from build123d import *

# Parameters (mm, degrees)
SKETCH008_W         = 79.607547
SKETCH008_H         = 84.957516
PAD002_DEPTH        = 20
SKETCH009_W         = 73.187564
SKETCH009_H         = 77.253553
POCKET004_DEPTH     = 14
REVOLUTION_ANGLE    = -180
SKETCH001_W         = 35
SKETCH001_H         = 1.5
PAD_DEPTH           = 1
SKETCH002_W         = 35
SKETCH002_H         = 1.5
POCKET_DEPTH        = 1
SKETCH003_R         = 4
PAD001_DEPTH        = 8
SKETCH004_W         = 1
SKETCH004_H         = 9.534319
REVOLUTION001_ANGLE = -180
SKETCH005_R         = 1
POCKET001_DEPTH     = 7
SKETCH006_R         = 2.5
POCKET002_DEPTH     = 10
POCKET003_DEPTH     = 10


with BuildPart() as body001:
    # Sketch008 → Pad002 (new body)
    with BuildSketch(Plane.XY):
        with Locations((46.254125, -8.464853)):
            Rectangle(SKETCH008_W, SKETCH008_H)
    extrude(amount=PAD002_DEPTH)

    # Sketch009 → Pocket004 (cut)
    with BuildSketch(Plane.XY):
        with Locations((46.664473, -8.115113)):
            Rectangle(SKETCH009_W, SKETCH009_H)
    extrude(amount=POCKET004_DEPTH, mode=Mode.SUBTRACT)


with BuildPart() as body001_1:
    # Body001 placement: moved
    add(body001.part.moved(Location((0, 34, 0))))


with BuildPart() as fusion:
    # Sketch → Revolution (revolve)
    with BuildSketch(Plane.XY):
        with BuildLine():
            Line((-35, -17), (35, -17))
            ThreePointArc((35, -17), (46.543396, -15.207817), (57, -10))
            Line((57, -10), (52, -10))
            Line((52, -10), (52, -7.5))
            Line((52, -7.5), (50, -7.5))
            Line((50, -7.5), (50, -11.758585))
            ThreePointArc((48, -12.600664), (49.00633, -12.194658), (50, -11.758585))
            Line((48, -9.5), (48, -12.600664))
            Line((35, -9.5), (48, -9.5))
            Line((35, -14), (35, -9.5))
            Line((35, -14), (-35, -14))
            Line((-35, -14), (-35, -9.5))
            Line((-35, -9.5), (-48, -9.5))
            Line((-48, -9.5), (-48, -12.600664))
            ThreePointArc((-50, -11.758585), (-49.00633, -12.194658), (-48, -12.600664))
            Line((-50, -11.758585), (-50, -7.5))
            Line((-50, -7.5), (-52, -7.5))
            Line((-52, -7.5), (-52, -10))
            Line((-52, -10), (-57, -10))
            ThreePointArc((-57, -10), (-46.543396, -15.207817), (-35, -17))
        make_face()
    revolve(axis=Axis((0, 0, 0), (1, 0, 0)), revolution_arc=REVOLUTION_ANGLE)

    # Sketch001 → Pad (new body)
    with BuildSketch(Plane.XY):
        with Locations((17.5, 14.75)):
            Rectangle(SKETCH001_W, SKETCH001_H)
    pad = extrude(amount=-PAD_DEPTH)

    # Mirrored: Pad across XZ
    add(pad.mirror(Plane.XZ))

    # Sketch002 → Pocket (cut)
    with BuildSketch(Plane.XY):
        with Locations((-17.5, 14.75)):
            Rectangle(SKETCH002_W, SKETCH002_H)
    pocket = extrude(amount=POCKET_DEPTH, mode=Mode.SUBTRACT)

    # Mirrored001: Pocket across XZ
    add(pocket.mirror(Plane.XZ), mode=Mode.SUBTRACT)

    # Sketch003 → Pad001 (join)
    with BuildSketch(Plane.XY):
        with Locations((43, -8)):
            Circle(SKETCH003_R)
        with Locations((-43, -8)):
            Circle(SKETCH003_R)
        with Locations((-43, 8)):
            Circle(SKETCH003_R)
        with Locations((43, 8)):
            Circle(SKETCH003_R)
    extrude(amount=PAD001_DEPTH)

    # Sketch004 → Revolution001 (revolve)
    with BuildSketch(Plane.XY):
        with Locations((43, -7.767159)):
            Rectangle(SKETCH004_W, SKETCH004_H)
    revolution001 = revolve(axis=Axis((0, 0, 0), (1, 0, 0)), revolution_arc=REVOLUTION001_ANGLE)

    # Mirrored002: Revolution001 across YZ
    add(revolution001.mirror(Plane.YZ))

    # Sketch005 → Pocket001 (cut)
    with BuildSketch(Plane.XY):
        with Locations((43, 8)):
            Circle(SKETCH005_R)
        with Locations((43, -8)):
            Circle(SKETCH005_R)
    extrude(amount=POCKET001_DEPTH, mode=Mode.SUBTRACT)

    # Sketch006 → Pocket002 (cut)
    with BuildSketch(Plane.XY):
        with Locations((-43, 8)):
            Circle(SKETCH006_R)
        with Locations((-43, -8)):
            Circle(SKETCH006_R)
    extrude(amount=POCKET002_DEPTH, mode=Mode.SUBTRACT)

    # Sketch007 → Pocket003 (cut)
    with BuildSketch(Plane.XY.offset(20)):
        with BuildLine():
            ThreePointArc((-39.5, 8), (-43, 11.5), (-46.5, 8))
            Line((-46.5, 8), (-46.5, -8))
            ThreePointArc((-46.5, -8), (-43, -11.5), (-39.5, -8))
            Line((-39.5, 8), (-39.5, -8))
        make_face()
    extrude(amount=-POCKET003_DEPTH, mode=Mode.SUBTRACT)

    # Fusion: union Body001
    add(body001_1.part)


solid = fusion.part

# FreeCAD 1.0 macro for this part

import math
import FreeCAD as App
import Part
import Sketcher
from FreeCAD import Vector

doc = App.newDocument("Part")
params = doc.addObject("Spreadsheet::Sheet", "Params")
for row, (alias, value) in enumerate([
    ("pad1_length", "20 mm"),
    ("pocket1_length", "14 mm"),
    ("sketch3_width", "70 mm"),
    ("sketch3_width2", "5 mm"),
    ("sketch3_width3", "2 mm"),
    ("sketch3_width4", "13 mm"),
    ("sketch3_width5", "70 mm"),
    ("revolution_angle", "180 deg"),
    ("sketch4_width", "35 mm"),
    ("sketch4_height", "1.5 mm"),
    ("pad2_length", "1 mm"),
    ("sketch5_width", "35 mm"),
    ("sketch5_height", "1.5 mm"),
    ("pocket2_length", "1 mm"),
    ("sketch6_diameter", "8 mm"),
    ("pad3_length", "8 mm"),
    ("sketch7_width", "1 mm"),
    ("revolution2_angle", "180 deg"),
    ("sketch8_diameter", "2 mm"),
    ("pocket3_length", "7 mm"),
    ("sketch9_diameter", "5 mm"),
    ("pocket4_length", "10 mm"),
    ("sketch10_radius", "3.5 mm"),
    ("sketch10_height", "16 mm"),
    ("pocket5_length", "10 mm"),
], start=1):
    params.set(f"A{row}", alias)
    params.set(f"B{row}", "=" + value)
    params.setAlias(f"B{row}", alias)

body = doc.addObject("PartDesign::Body", "Body")

sketch1 = body.newObject("Sketcher::SketchObject", "Sketch")
sketch1.AttachmentSupport = (doc.getObject("XY_Plane"), [""])
sketch1.MapMode = "FlatFace"
sketch1.addGeometry([
    Part.LineSegment(Vector(6, 34, 0), Vector(6, -51, 0)),
    Part.LineSegment(Vector(6, -51, 0), Vector(86, -51, 0)),
    Part.LineSegment(Vector(86, -51, 0), Vector(86, 34, 0)),
    Part.LineSegment(Vector(86, 34, 0), Vector(6, 34, 0)),
], False)
sketch1.addConstraint([
    Sketcher.Constraint("Coincident", 0, 2, 1, 1),
    Sketcher.Constraint("Coincident", 1, 2, 2, 1),
    Sketcher.Constraint("Coincident", 2, 2, 3, 1),
    Sketcher.Constraint("Coincident", 3, 2, 0, 1),
    Sketcher.Constraint("Vertical", 0),
    Sketcher.Constraint("Horizontal", 1),
    Sketcher.Constraint("Vertical", 2),
    Sketcher.Constraint("Horizontal", 3),
    Sketcher.Constraint("DistanceX", -1, 1, 1, 2, 86.057898),
    Sketcher.Constraint("DistanceX", 1, 1, 1, 2, 79.607547),
    Sketcher.Constraint("DistanceY", 0, 2, 0, 1, 84.957516),
    Sketcher.Constraint("DistanceY", 0, 2, -1, 1, 50.943611),
])
pad1 = body.newObject("PartDesign::Pad", "Pad")
pad1.Profile = sketch1
pad1.setExpression("Length", "Params.pad1_length")

sketch2 = body.newObject("Sketcher::SketchObject", "Sketch001")
sketch2.AttachmentSupport = (doc.getObject("XY_Plane"), [""])
sketch2.MapMode = "FlatFace"
sketch2.addGeometry([
    Part.LineSegment(Vector(10, 31, 0), Vector(10, -47, 0)),
    Part.LineSegment(Vector(10, -47, 0), Vector(83, -47, 0)),
    Part.LineSegment(Vector(83, -47, 0), Vector(83, 31, 0)),
    Part.LineSegment(Vector(83, 31, 0), Vector(10, 31, 0)),
], False)
sketch2.addConstraint([
    Sketcher.Constraint("Coincident", 0, 2, 1, 1),
    Sketcher.Constraint("Coincident", 1, 2, 2, 1),
    Sketcher.Constraint("Coincident", 2, 2, 3, 1),
    Sketcher.Constraint("Coincident", 3, 2, 0, 1),
    Sketcher.Constraint("Vertical", 0),
    Sketcher.Constraint("Horizontal", 1),
    Sketcher.Constraint("Vertical", 2),
    Sketcher.Constraint("Horizontal", 3),
    Sketcher.Constraint("DistanceX", 1, 1, 1, 2, 73.187564),
    Sketcher.Constraint("DistanceY", 0, 2, 0, 1, 77.253553),
    Sketcher.Constraint("DistanceX", -1, 1, 0, 2, 10.070691),
    Sketcher.Constraint("DistanceY", 0, 2, -1, 1, 46.741889),
])
pocket1 = body.newObject("PartDesign::Pocket", "Pocket")
pocket1.Profile = sketch2
pocket1.setExpression("Length", "Params.pocket1_length")
pocket1.Reversed = True
body2 = doc.addObject("PartDesign::Body", "Body001")
doc.recompute()

body.Placement = App.Placement(Vector(0, 34, 0), App.Rotation(Vector(0, 0, 1), 0))
boolean = body2.newObject("PartDesign::Boolean", "Boolean")
boolean.Type = "Fuse"
boolean.addObjects([body])
body3 = doc.addObject("PartDesign::Body", "Body002")

sketch3 = body3.newObject("Sketcher::SketchObject", "Sketch002")
sketch3.AttachmentSupport = (doc.getObject("XY_Plane002"), [""])
sketch3.MapMode = "FlatFace"
sketch3.addGeometry([
    Part.LineSegment(Vector(-35, -17, 0), Vector(35, -17, 0)),
    Part.ArcOfCircle(Part.Circle(Vector(34.999998, 21.071435, 0), Vector(0, 0, 1), 38.071435), math.radians(-89.999997), math.radians(-54.699754)),
    Part.LineSegment(Vector(57, -10, 0), Vector(52, -10, 0)),
    Part.LineSegment(Vector(52, -10, 0), Vector(52, -7.5, 0)),
    Part.LineSegment(Vector(52, -7.5, 0), Vector(50, -7.5, 0)),
    Part.LineSegment(Vector(50, -7.5, 0), Vector(50, -11.758585, 0)),
    Part.ArcOfCircle(Part.Circle(Vector(34.99989, 21.071674, 0), Vector(0, 0, 1), 36.094725), math.radians(-68.88958), math.radians(-65.44439)),
    Part.LineSegment(Vector(48, -12.600664, 0), Vector(48, -9.5, 0)),
    Part.LineSegment(Vector(48, -9.5, 0), Vector(35, -9.5, 0)),
    Part.LineSegment(Vector(35, -9.5, 0), Vector(35, -14, 0)),
    Part.LineSegment(Vector(35, -14, 0), Vector(-35, -14, 0)),
    Part.LineSegment(Vector(-35, -14, 0), Vector(-35, -9.5, 0)),
    Part.LineSegment(Vector(-35, -9.5, 0), Vector(-48, -9.5, 0)),
    Part.LineSegment(Vector(-48, -9.5, 0), Vector(-48, -12.600664, 0)),
    Part.ArcOfCircle(Part.Circle(Vector(-34.99989, 21.071674, 0), Vector(0, 0, 1), 36.094725), math.radians(-114.55561), math.radians(-111.11042)),
    Part.LineSegment(Vector(-50, -11.758585, 0), Vector(-50, -7.5, 0)),
    Part.LineSegment(Vector(-50, -7.5, 0), Vector(-52, -7.5, 0)),
    Part.LineSegment(Vector(-52, -7.5, 0), Vector(-52, -10, 0)),
    Part.LineSegment(Vector(-52, -10, 0), Vector(-57, -10, 0)),
    Part.ArcOfCircle(Part.Circle(Vector(-34.999998, 21.071435, 0), Vector(0, 0, 1), 38.071435), math.radians(-125.300246), math.radians(-90.000003)),
], False)
sketch3.addConstraint([
    Sketcher.Constraint("Coincident", 0, 2, 1, 1),
    Sketcher.Constraint("Coincident", 1, 2, 2, 1),
    Sketcher.Constraint("Coincident", 2, 2, 3, 1),
    Sketcher.Constraint("Coincident", 3, 2, 4, 1),
    Sketcher.Constraint("Coincident", 4, 2, 5, 1),
    Sketcher.Constraint("Coincident", 5, 2, 6, 2),
    Sketcher.Constraint("Coincident", 6, 1, 7, 1),
    Sketcher.Constraint("Coincident", 7, 2, 8, 1),
    Sketcher.Constraint("Coincident", 8, 2, 9, 1),
    Sketcher.Constraint("Coincident", 9, 2, 10, 1),
    Sketcher.Constraint("Coincident", 10, 2, 11, 1),
    Sketcher.Constraint("Coincident", 11, 2, 12, 1),
    Sketcher.Constraint("Coincident", 12, 2, 13, 1),
    Sketcher.Constraint("Coincident", 13, 2, 14, 2),
    Sketcher.Constraint("Coincident", 14, 1, 15, 1),
    Sketcher.Constraint("Coincident", 15, 2, 16, 1),
    Sketcher.Constraint("Coincident", 16, 2, 17, 1),
    Sketcher.Constraint("Coincident", 17, 2, 18, 1),
    Sketcher.Constraint("Coincident", 18, 2, 19, 1),
    Sketcher.Constraint("Coincident", 19, 2, 0, 1),
    Sketcher.Constraint("Horizontal", 0),
    Sketcher.Constraint("Horizontal", 2),
    Sketcher.Constraint("Vertical", 3),
    Sketcher.Constraint("Horizontal", 4),
    Sketcher.Constraint("Vertical", 5),
    Sketcher.Constraint("Vertical", 7),
    Sketcher.Constraint("Horizontal", 8),
    Sketcher.Constraint("Vertical", 9),
    Sketcher.Constraint("Horizontal", 10),
    Sketcher.Constraint("Vertical", 11),
    Sketcher.Constraint("Horizontal", 12),
    Sketcher.Constraint("Vertical", 13),
    Sketcher.Constraint("Vertical", 15),
    Sketcher.Constraint("Horizontal", 16),
    Sketcher.Constraint("Vertical", 17),
    Sketcher.Constraint("Horizontal", 18),
    Sketcher.Constraint("DistanceX", 0, 1, 0, 2, 70.0),
    Sketcher.Constraint("DistanceX", 2, 2, 2, 1, 5.0),
    Sketcher.Constraint("DistanceX", 4, 2, 4, 1, 2.0),
    Sketcher.Constraint("DistanceX", 8, 2, 8, 1, 13.0),
    Sketcher.Constraint("DistanceX", 10, 2, 10, 1, 70.0),
    Sketcher.Constraint("DistanceX", 12, 2, 12, 1, 13.0),
    Sketcher.Constraint("DistanceX", 16, 2, 16, 1, 2.0),
    Sketcher.Constraint("DistanceX", 18, 2, 18, 1, 5.0),
    Sketcher.Constraint("DistanceY", 3, 1, 3, 2, 2.5),
    Sketcher.Constraint("DistanceY", 9, 2, 9, 1, 4.5),
    Sketcher.Constraint("DistanceY", 11, 1, 11, 2, 4.5),
    Sketcher.Constraint("DistanceY", 17, 2, 17, 1, 2.5),
    Sketcher.Constraint("DistanceX", -1, 1, 1, 3, 34.999998),
    Sketcher.Constraint("DistanceX", 19, 3, -1, 1, 34.999998),
    Sketcher.Constraint("DistanceX", -1, 1, 0, 2, 35.0),
    Sketcher.Constraint("DistanceY", 0, 2, -1, 1, 17.0),
    Sketcher.Constraint("DistanceX", -1, 1, 1, 2, 57.0),
    Sketcher.Constraint("DistanceY", 1, 2, -1, 1, 10.0),
    Sketcher.Constraint("DistanceX", -1, 1, 6, 1, 48.0),
    Sketcher.Constraint("DistanceY", 9, 2, -1, 1, 14.0),
    Sketcher.Constraint("DistanceX", 14, 1, -1, 1, 50.0),
    Sketcher.Constraint("DistanceY", 17, 2, -1, 1, 10.0),
    Sketcher.Constraint("Radius", 6, 36.094725),
    Sketcher.Constraint("Radius", 14, 36.094725),
    Sketcher.Constraint("DistanceY", 13, 2, 19, 3, 33.672099),
    Sketcher.Constraint("DistanceY", 5, 2, 5, 1, 4.258585),
    Sketcher.Constraint("DistanceY", 7, 1, 7, 2, 3.100664),
    Sketcher.Constraint("DistanceY", 15, 1, 15, 2, 4.258585),
])
sketch3.setExpression("Constraints[36]", "Params.sketch3_width")
sketch3.setExpression("Constraints[37]", "Params.sketch3_width2")
sketch3.setExpression("Constraints[38]", "Params.sketch3_width3")
sketch3.setExpression("Constraints[39]", "Params.sketch3_width4")
sketch3.setExpression("Constraints[40]", "Params.sketch3_width5")
revolution = body3.newObject("PartDesign::Revolution", "Revolution")
revolution.Profile = sketch3
revolution.ReferenceAxis = (sketch3, ["H_Axis"])
revolution.setExpression("Angle", "Params.revolution_angle")
revolution.Reversed = True

sketch4 = body3.newObject("Sketcher::SketchObject", "Sketch003")
sketch4.AttachmentSupport = (doc.getObject("XY_Plane002"), [""])
sketch4.MapMode = "FlatFace"
sketch4.addGeometry([
    Part.LineSegment(Vector(0, 15.5, 0), Vector(0, 14, 0)),
    Part.LineSegment(Vector(0, 14, 0), Vector(35, 14, 0)),
    Part.LineSegment(Vector(35, 14, 0), Vector(35, 15.5, 0)),
    Part.LineSegment(Vector(35, 15.5, 0), Vector(0, 15.5, 0)),
], False)
sketch4.addConstraint([
    Sketcher.Constraint("Coincident", 0, 2, 1, 1),
    Sketcher.Constraint("Coincident", 1, 2, 2, 1),
    Sketcher.Constraint("Coincident", 2, 2, 3, 1),
    Sketcher.Constraint("Coincident", 3, 2, 0, 1),
    Sketcher.Constraint("Vertical", 0),
    Sketcher.Constraint("Horizontal", 1),
    Sketcher.Constraint("Vertical", 2),
    Sketcher.Constraint("Horizontal", 3),
    Sketcher.Constraint("PointOnObject", 0, 2, -2),
    Sketcher.Constraint("DistanceX", 1, 1, 1, 2, 35.0),
    Sketcher.Constraint("DistanceY", 0, 2, 0, 1, 1.5),
    Sketcher.Constraint("DistanceY", -1, 1, 0, 2, 14.0),
])
sketch4.setExpression("Constraints[9]", "Params.sketch4_width")
sketch4.setExpression("Constraints[10]", "Params.sketch4_height")
pad2 = body3.newObject("PartDesign::Pad", "Pad001")
pad2.Profile = sketch4
pad2.setExpression("Length", "Params.pad2_length")
pad2.Reversed = True
doc.recompute()

mirrored = body3.newObject("PartDesign::Mirrored", "Mirrored")
mirrored.Originals = [pad2]
mirrored.MirrorPlane = (doc.getObject("XZ_Plane002"), [""])
body3.Tip = mirrored

sketch5 = body3.newObject("Sketcher::SketchObject", "Sketch004")
sketch5.AttachmentSupport = (doc.getObject("XY_Plane002"), [""])
sketch5.MapMode = "FlatFace"
sketch5.addGeometry([
    Part.LineSegment(Vector(-35, 15.5, 0), Vector(-35, 14, 0)),
    Part.LineSegment(Vector(-35, 14, 0), Vector(0, 14, 0)),
    Part.LineSegment(Vector(0, 14, 0), Vector(0, 15.5, 0)),
    Part.LineSegment(Vector(0, 15.5, 0), Vector(-35, 15.5, 0)),
], False)
sketch5.addConstraint([
    Sketcher.Constraint("Coincident", 0, 2, 1, 1),
    Sketcher.Constraint("Coincident", 1, 2, 2, 1),
    Sketcher.Constraint("Coincident", 2, 2, 3, 1),
    Sketcher.Constraint("Coincident", 3, 2, 0, 1),
    Sketcher.Constraint("Vertical", 0),
    Sketcher.Constraint("Horizontal", 1),
    Sketcher.Constraint("Vertical", 2),
    Sketcher.Constraint("Horizontal", 3),
    Sketcher.Constraint("PointOnObject", 1, 2, -2),
    Sketcher.Constraint("DistanceX", 1, 1, 1, 2, 35.0),
    Sketcher.Constraint("DistanceY", 0, 2, 0, 1, 1.5),
    Sketcher.Constraint("DistanceY", -1, 1, 0, 2, 14.0),
])
sketch5.setExpression("Constraints[9]", "Params.sketch5_width")
sketch5.setExpression("Constraints[10]", "Params.sketch5_height")
pocket2 = body3.newObject("PartDesign::Pocket", "Pocket001")
pocket2.Profile = sketch5
pocket2.setExpression("Length", "Params.pocket2_length")
pocket2.Reversed = True
doc.recompute()

mirrored2 = body3.newObject("PartDesign::Mirrored", "Mirrored001")
mirrored2.Originals = [pocket2]
mirrored2.MirrorPlane = (doc.getObject("XZ_Plane002"), [""])
body3.Tip = mirrored2

sketch6 = body3.newObject("Sketcher::SketchObject", "Sketch005")
sketch6.AttachmentSupport = (doc.getObject("XY_Plane002"), [""])
sketch6.MapMode = "FlatFace"
sketch6.addGeometry([
    Part.Circle(Vector(43, -8, 0), Vector(0, 0, 1), 4),
    Part.Circle(Vector(-43, -8, 0), Vector(0, 0, 1), 4),
    Part.Circle(Vector(-43, 8, 0), Vector(0, 0, 1), 4),
    Part.Circle(Vector(43, 8, 0), Vector(0, 0, 1), 4),
], False)
sketch6.addConstraint([
    Sketcher.Constraint("Equal", 0, 1),
    Sketcher.Constraint("Equal", 1, 2),
    Sketcher.Constraint("Equal", 2, 3),
    Sketcher.Constraint("Symmetric", 0, 3, 2, 3, -1, 1),
    Sketcher.Constraint("Symmetric", 1, 3, 3, 3, -1, 1),
    Sketcher.Constraint("Symmetric", 0, 3, 1, 3, -2),
    Sketcher.Constraint("Diameter", 0, 8.0),
    Sketcher.Constraint("DistanceX", -1, 1, 0, 3, 43.0),
    Sketcher.Constraint("DistanceY", 0, 3, -1, 1, 8.0),
])
sketch6.setExpression("Constraints[6]", "Params.sketch6_diameter")
pad3 = body3.newObject("PartDesign::Pad", "Pad002")
pad3.Profile = sketch6
pad3.setExpression("Length", "Params.pad3_length")

sketch7 = body3.newObject("Sketcher::SketchObject", "Sketch006")
sketch7.AttachmentSupport = (doc.getObject("XY_Plane002"), [""])
sketch7.MapMode = "FlatFace"
sketch7.addGeometry([
    Part.LineSegment(Vector(42.5, -3, 0), Vector(42.5, -12.5, 0)),
    Part.LineSegment(Vector(42.5, -12.5, 0), Vector(43.5, -12.5, 0)),
    Part.LineSegment(Vector(43.5, -12.5, 0), Vector(43.5, -3, 0)),
    Part.LineSegment(Vector(43.5, -3, 0), Vector(42.5, -3, 0)),
], False)
sketch7.addConstraint([
    Sketcher.Constraint("Coincident", 0, 2, 1, 1),
    Sketcher.Constraint("Coincident", 1, 2, 2, 1),
    Sketcher.Constraint("Coincident", 2, 2, 3, 1),
    Sketcher.Constraint("Coincident", 3, 2, 0, 1),
    Sketcher.Constraint("Vertical", 0),
    Sketcher.Constraint("Horizontal", 1),
    Sketcher.Constraint("Vertical", 2),
    Sketcher.Constraint("Horizontal", 3),
    Sketcher.Constraint("DistanceX", 1, 1, 1, 2, 1.0),
    Sketcher.Constraint("DistanceY", 2, 2, -1, 1, 2.999999),
    Sketcher.Constraint("DistanceX", -1, 1, 0, 2, 42.5),
    Sketcher.Constraint("DistanceY", 0, 2, 0, 1, 9.534319),
])
sketch7.setExpression("Constraints[8]", "Params.sketch7_width")
revolution2 = body3.newObject("PartDesign::Revolution", "Revolution001")
revolution2.Profile = sketch7
revolution2.ReferenceAxis = (sketch7, ["H_Axis"])
revolution2.setExpression("Angle", "Params.revolution2_angle")
revolution2.Reversed = True
doc.recompute()

mirrored3 = body3.newObject("PartDesign::Mirrored", "Mirrored002")
mirrored3.Originals = [revolution2]
mirrored3.MirrorPlane = (doc.getObject("YZ_Plane002"), [""])
body3.Tip = mirrored3

sketch8 = body3.newObject("Sketcher::SketchObject", "Sketch007")
sketch8.AttachmentSupport = (doc.getObject("XY_Plane002"), [""])
sketch8.MapMode = "FlatFace"
sketch8.addGeometry([
    Part.Circle(Vector(43, 8, 0), Vector(0, 0, 1), 1),
    Part.Circle(Vector(43, -8, 0), Vector(0, 0, 1), 1),
], False)
sketch8.addConstraint([
    Sketcher.Constraint("Equal", 0, 1),
    Sketcher.Constraint("Symmetric", 0, 3, 1, 3, -1),
    Sketcher.Constraint("Diameter", 0, 2.0),
    Sketcher.Constraint("DistanceX", -1, 1, 0, 3, 43.0),
    Sketcher.Constraint("DistanceY", -1, 1, 0, 3, 8.0),
])
sketch8.setExpression("Constraints[2]", "Params.sketch8_diameter")
pocket3 = body3.newObject("PartDesign::Pocket", "Pocket002")
pocket3.Profile = sketch8
pocket3.setExpression("Length", "Params.pocket3_length")
pocket3.Reversed = True

sketch9 = body3.newObject("Sketcher::SketchObject", "Sketch008")
sketch9.AttachmentSupport = (doc.getObject("XY_Plane002"), [""])
sketch9.MapMode = "FlatFace"
sketch9.addGeometry([
    Part.Circle(Vector(-43, 8, 0), Vector(0, 0, 1), 2.5),
    Part.Circle(Vector(-43, -8, 0), Vector(0, 0, 1), 2.5),
], False)
sketch9.addConstraint([
    Sketcher.Constraint("Equal", 0, 1),
    Sketcher.Constraint("Symmetric", 0, 3, 1, 3, -1),
    Sketcher.Constraint("Diameter", 0, 5.0),
    Sketcher.Constraint("DistanceX", 0, 3, -1, 1, 43.0),
    Sketcher.Constraint("DistanceY", -1, 1, 0, 3, 8.0),
])
sketch9.setExpression("Constraints[2]", "Params.sketch9_diameter")
pocket4 = body3.newObject("PartDesign::Pocket", "Pocket003")
pocket4.Profile = sketch9
pocket4.setExpression("Length", "Params.pocket4_length")
pocket4.Reversed = True

sketch10 = body3.newObject("Sketcher::SketchObject", "Sketch009")
sketch10.AttachmentSupport = (doc.getObject("XY_Plane002"), [""])
sketch10.MapMode = "FlatFace"
sketch10.AttachmentOffset = App.Placement(Vector(0, 0, 20), App.Rotation())
sketch10.addGeometry([
    Part.ArcOfCircle(Part.Circle(Vector(-43, 8, 0), Vector(0, 0, 1), 3.5), math.radians(0), math.radians(180)),
    Part.LineSegment(Vector(-46.5, 8, 0), Vector(-46.5, -8, 0)),
    Part.ArcOfCircle(Part.Circle(Vector(-43, -8, 0), Vector(0, 0, 1), 3.5), math.radians(180), math.radians(360)),
    Part.LineSegment(Vector(-39.5, -8, 0), Vector(-39.5, 8, 0)),
], False)
sketch10.addConstraint([
    Sketcher.Constraint("Tangent", 0, 2, 1, 1),
    Sketcher.Constraint("Tangent", 1, 2, 2, 1),
    Sketcher.Constraint("Tangent", 2, 2, 3, 1),
    Sketcher.Constraint("Tangent", 3, 2, 0, 1),
    Sketcher.Constraint("Vertical", 1),
    Sketcher.Constraint("Vertical", 3),
    Sketcher.Constraint("Radius", 0, 3.5),
    Sketcher.Constraint("DistanceY", 1, 2, 1, 1, 16.0),
    Sketcher.Constraint("DistanceX", 0, 3, -1, 1, 43.0),
    Sketcher.Constraint("DistanceY", -1, 1, 0, 3, 8.0),
])
sketch10.setExpression("Constraints[6]", "Params.sketch10_radius")
sketch10.setExpression("Constraints[7]", "Params.sketch10_height")
pocket5 = body3.newObject("PartDesign::Pocket", "Pocket004")
pocket5.Profile = sketch10
pocket5.setExpression("Length", "Params.pocket5_length")
doc.recompute()

boolean2 = body3.newObject("PartDesign::Boolean", "Boolean001")
boolean2.Type = "Fuse"
boolean2.addObjects([body2])

doc.recompute()
